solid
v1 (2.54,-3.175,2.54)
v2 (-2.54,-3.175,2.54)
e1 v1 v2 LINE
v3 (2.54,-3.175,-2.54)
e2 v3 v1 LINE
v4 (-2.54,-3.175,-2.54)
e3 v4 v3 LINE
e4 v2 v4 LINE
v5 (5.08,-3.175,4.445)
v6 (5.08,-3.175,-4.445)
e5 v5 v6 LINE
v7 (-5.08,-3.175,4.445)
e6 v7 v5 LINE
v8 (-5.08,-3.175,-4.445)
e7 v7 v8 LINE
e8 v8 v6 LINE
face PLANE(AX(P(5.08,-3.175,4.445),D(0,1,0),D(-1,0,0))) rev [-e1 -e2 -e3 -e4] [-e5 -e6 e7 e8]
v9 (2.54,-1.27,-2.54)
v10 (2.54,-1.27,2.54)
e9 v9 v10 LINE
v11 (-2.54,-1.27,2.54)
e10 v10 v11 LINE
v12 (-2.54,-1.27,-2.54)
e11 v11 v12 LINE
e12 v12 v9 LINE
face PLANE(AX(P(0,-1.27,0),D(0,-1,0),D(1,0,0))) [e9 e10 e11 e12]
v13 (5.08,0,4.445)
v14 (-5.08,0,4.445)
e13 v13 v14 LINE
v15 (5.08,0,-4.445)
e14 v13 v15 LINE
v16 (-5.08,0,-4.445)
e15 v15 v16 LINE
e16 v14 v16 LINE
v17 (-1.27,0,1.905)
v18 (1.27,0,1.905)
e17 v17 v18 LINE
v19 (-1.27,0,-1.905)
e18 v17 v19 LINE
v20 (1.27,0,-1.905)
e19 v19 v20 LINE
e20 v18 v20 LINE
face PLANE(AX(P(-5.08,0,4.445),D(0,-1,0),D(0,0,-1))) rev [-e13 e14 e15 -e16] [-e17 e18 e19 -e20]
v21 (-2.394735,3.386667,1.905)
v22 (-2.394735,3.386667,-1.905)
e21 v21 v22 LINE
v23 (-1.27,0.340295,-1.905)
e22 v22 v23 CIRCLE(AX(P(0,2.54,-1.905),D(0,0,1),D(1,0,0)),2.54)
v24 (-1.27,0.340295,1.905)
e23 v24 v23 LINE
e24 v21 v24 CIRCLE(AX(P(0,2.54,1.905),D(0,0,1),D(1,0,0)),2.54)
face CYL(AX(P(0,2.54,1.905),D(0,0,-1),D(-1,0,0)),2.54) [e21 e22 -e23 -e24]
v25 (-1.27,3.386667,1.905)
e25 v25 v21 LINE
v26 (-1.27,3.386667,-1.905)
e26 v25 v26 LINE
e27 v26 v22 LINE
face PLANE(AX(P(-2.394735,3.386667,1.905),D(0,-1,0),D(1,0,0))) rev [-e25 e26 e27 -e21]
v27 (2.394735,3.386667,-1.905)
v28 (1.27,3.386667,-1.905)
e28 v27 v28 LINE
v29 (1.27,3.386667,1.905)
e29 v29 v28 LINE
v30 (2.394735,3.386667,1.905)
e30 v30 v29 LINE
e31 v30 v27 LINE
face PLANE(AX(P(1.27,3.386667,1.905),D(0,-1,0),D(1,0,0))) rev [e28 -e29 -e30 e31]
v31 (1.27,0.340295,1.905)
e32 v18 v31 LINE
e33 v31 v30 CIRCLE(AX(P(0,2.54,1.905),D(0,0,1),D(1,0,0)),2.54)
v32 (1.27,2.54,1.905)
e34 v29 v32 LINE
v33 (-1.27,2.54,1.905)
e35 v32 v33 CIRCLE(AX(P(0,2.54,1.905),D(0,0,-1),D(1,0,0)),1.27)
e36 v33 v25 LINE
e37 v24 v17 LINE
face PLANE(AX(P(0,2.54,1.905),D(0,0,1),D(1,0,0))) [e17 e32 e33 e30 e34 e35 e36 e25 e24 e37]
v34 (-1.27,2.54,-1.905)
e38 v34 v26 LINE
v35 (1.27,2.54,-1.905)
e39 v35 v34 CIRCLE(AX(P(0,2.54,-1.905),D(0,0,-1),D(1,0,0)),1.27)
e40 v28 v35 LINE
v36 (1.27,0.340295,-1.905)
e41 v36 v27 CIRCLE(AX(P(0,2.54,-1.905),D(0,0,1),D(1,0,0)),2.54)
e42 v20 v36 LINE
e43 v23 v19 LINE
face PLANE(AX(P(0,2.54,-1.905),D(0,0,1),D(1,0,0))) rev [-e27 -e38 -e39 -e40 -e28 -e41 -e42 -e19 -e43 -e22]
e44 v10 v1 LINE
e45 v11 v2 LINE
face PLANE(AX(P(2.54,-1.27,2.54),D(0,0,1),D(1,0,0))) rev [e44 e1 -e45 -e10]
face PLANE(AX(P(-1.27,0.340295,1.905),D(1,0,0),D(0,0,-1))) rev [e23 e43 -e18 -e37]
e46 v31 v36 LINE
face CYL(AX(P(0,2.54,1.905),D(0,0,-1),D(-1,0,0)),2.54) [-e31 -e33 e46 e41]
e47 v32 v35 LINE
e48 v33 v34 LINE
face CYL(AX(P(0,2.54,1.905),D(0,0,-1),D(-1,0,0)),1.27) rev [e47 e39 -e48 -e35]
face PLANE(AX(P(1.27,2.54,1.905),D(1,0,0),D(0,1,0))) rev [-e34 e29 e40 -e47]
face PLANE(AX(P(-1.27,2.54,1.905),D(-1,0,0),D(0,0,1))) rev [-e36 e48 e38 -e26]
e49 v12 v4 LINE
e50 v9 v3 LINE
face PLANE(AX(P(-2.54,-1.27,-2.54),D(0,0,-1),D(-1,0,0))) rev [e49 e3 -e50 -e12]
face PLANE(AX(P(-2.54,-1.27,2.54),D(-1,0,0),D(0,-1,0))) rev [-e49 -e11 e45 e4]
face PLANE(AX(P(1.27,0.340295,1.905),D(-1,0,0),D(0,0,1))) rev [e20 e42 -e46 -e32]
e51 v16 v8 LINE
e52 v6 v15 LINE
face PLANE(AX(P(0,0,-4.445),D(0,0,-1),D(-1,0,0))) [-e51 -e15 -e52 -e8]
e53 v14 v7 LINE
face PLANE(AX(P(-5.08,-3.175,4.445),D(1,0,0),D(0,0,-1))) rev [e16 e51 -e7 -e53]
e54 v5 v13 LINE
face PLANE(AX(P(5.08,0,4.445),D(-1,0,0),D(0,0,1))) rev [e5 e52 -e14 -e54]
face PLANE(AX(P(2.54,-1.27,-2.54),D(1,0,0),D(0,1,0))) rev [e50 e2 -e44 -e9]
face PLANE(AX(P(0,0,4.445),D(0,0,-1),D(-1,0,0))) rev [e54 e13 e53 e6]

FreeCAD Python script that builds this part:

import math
import FreeCAD as App
import Part
import Sketcher
Q = App.Units.Quantity

doc = App.newDocument("Part")
body = doc.addObject("PartDesign::Body", "Body")

# Sketch on XY plane
sketch1 = doc.addObject("Sketcher::SketchObject", "Sketch")
body.addObject(sketch1)
sketch1.AttachmentSupport = (doc.XY_Plane, [""])
sketch1.MapMode = "FlatFace"
sketch1.addGeometry([
    Part.LineSegment(App.Vector(-5.1, 0, 0), App.Vector(-5.1, -3.2, 0)),
    Part.LineSegment(App.Vector(-5.1, -3.2, 0), App.Vector(5.1, -3.2, 0)),
    Part.LineSegment(App.Vector(5.1, -3.2, 0), App.Vector(5.1, 0, 0)),
    Part.LineSegment(App.Vector(5.1, 0, 0), App.Vector(-5.1, 0, 0)),
], False)
sketch1.addConstraint([
    Sketcher.Constraint("Coincident", 0, 2, 1, 1),
    Sketcher.Constraint("Coincident", 1, 2, 2, 1),
    Sketcher.Constraint("Coincident", 2, 2, 3, 1),
    Sketcher.Constraint("Coincident", 3, 2, 0, 1),
    Sketcher.Constraint("Vertical", 0),
    Sketcher.Constraint("Horizontal", 1),
    Sketcher.Constraint("Vertical", 2),
    Sketcher.Constraint("Horizontal", 3),
    Sketcher.Constraint("Symmetric", 2, 2, 3, 2, -1, 1),
    Sketcher.Constraint("DistanceX", 1, 1, 1, 2, Q("0.4 in")),
    Sketcher.Constraint("DistanceY", 0, 2, 0, 1, Q("0.125 in")),
])
pad1 = doc.addObject("PartDesign::Pad", "Pad")
body.addObject(pad1)
pad1.Profile = sketch1
pad1.Length = Q("0.35 in")
pad1.Midplane = True

# Sketch on XY plane
sketch2 = doc.addObject("Sketcher::SketchObject", "Sketch001")
body.addObject(sketch2)
sketch2.AttachmentSupport = (doc.XY_Plane, [""])
sketch2.MapMode = "FlatFace"
sketch2.addGeometry([
    Part.LineSegment(App.Vector(-1.27, 2.54, 0), App.Vector(-1.27, 3.39, 0)),  # 0
    Part.LineSegment(App.Vector(-1.27, 3.39, 0), App.Vector(-2.39, 3.39, 0)),  # 1
    Part.ArcOfCircle(Part.Circle(App.Vector(0, 2.54, 0), App.Vector(0, 0, 1), 2.54), math.radians(161), math.radians(240)),  # 2
    Part.LineSegment(App.Vector(-1.27, 0.34, 0), App.Vector(-1.27, 0, 0)),  # 3
    Part.LineSegment(App.Vector(-1.27, 0, 0), App.Vector(1.27, 0, 0)),  # 4
    Part.LineSegment(App.Vector(1.27, 0, 0), App.Vector(1.27, 0.34, 0)),  # 5
    Part.ArcOfCircle(Part.Circle(App.Vector(0, 2.54, 0), App.Vector(0, 0, 1), 2.54), math.radians(-60), math.radians(19)),  # 6
    Part.LineSegment(App.Vector(2.39, 3.39, 0), App.Vector(1.27, 3.39, 0)),  # 7
    Part.LineSegment(App.Vector(1.27, 3.39, 0), App.Vector(1.27, 2.54, 0)),  # 8
    Part.ArcOfCircle(Part.Circle(App.Vector(0, 2.54, 0), App.Vector(0, 0, 1), 1.27), math.radians(180), math.radians(360)),  # 9
], False)
sketch2.addConstraint([
    Sketcher.Constraint("Coincident", 0, 2, 1, 1),
    Sketcher.Constraint("Coincident", 1, 2, 2, 1),
    Sketcher.Constraint("Coincident", 2, 2, 3, 1),
    Sketcher.Constraint("Coincident", 3, 2, 4, 1),
    Sketcher.Constraint("Coincident", 4, 2, 5, 1),
    Sketcher.Constraint("Coincident", 5, 2, 6, 1),
    Sketcher.Constraint("Coincident", 6, 2, 7, 1),
    Sketcher.Constraint("Coincident", 7, 2, 8, 1),
    Sketcher.Constraint("Tangent", 8, 2, 9, 2),
    Sketcher.Constraint("Tangent", 9, 1, 0, 1),
    Sketcher.Constraint("Vertical", 0),
    Sketcher.Constraint("Horizontal", 1),
    Sketcher.Constraint("Vertical", 3),
    Sketcher.Constraint("Horizontal", 4),
    Sketcher.Constraint("Vertical", 5),
    Sketcher.Constraint("Horizontal", 7),
    Sketcher.Constraint("Vertical", 8),
    Sketcher.Constraint("Coincident", 6, 3, 2, 3),
    Sketcher.Constraint("Coincident", 9, 3, 2, 3),
    Sketcher.Constraint("Equal", 2, 6),
    Sketcher.Constraint("Symmetric", 3, 2, 4, 2, -1, 1),
    Sketcher.Constraint("Symmetric", 1, 2, 6, 2, -2),
    Sketcher.Constraint("Vertical", 0, 2, 2, 2),
    Sketcher.Constraint("Radius", 2, Q("0.1 in")),
    Sketcher.Constraint("Radius", 9, Q("0.05 in")),
    Sketcher.Constraint("DistanceY", -1, 1, 2, 3, Q("0.1 in")),
    Sketcher.Constraint("DistanceX", 1, 2, 1, 1, 1.124735),
])
pad2 = doc.addObject("PartDesign::Pad", "Pad001")
body.addObject(pad2)
pad2.Profile = sketch2
pad2.Length = Q("0.15 in")
pad2.Midplane = True

# Sketch on XZ plane
sketch3 = doc.addObject("Sketcher::SketchObject", "Sketch002")
body.addObject(sketch3)
sketch3.AttachmentSupport = (doc.XZ_Plane, [""])
sketch3.MapMode = "FlatFace"
sketch3.AttachmentOffset = App.Placement(App.Vector(0, 0, 0.125 * 25.4), App.Rotation())
sketch3.addGeometry([
    Part.LineSegment(App.Vector(-8, 7, 0), App.Vector(-8, -7, 0)),  # 0
    Part.LineSegment(App.Vector(-8, -7, 0), App.Vector(8, -7, 0)),  # 1
    Part.LineSegment(App.Vector(8, -7, 0), App.Vector(8, 7, 0)),  # 2
    Part.LineSegment(App.Vector(8, 7, 0), App.Vector(-8, 7, 0)),  # 3
    Part.LineSegment(App.Vector(5, -4, 0), App.Vector(-5, -4, 0)),  # 4
    Part.LineSegment(App.Vector(-5, -4, 0), App.Vector(-5, 4, 0)),  # 5
    Part.LineSegment(App.Vector(-5, 4, 0), App.Vector(5, 4, 0)),  # 6
    Part.LineSegment(App.Vector(5, 4, 0), App.Vector(5, -4, 0)),  # 7
    Part.LineSegment(App.Vector(-3, 3, 0), App.Vector(-3, -3, 0)),  # 8
    Part.LineSegment(App.Vector(-3, -3, 0), App.Vector(3, -3, 0)),  # 9
    Part.LineSegment(App.Vector(3, -3, 0), App.Vector(3, 3, 0)),  # 10
    Part.LineSegment(App.Vector(3, 3, 0), App.Vector(-3, 3, 0)),  # 11
], False)
sketch3.addConstraint([
    Sketcher.Constraint("Coincident", 0, 2, 1, 1),
    Sketcher.Constraint("Coincident", 1, 2, 2, 1),
    Sketcher.Constraint("Coincident", 2, 2, 3, 1),
    Sketcher.Constraint("Coincident", 3, 2, 0, 1),
    Sketcher.Constraint("Coincident", 4, 2, 5, 1),
    Sketcher.Constraint("Coincident", 5, 2, 6, 1),
    Sketcher.Constraint("Coincident", 6, 2, 7, 1),
    Sketcher.Constraint("Coincident", 7, 2, 4, 1),
    Sketcher.Constraint("Coincident", 8, 2, 9, 1),
    Sketcher.Constraint("Coincident", 9, 2, 10, 1),
    Sketcher.Constraint("Coincident", 10, 2, 11, 1),
    Sketcher.Constraint("Coincident", 11, 2, 8, 1),
    Sketcher.Constraint("Vertical", 0),
    Sketcher.Constraint("Horizontal", 1),
    Sketcher.Constraint("Vertical", 2),
    Sketcher.Constraint("Horizontal", 3),
    Sketcher.Constraint("Horizontal", 4),
    Sketcher.Constraint("Vertical", 5),
    Sketcher.Constraint("Horizontal", 6),
    Sketcher.Constraint("Vertical", 7),
    Sketcher.Constraint("Vertical", 8),
    Sketcher.Constraint("Horizontal", 9),
    Sketcher.Constraint("Vertical", 10),
    Sketcher.Constraint("Horizontal", 11),
    Sketcher.Constraint("Symmetric", 0, 2, 2, 2, -1, 1),
    Sketcher.Constraint("Symmetric", 4, 2, 6, 2, -1, 1),
    Sketcher.Constraint("Symmetric", 8, 2, 10, 2, -1, 1),
    Sketcher.Constraint("Equal", 11, 8),
    Sketcher.Constraint("DistanceX", 4, 2, 4, 1, Q("0.4 in")),
    Sketcher.Constraint("DistanceX", 9, 1, 9, 2, Q("0.2 in")),
    Sketcher.Constraint("DistanceY", 5, 1, 5, 2, Q("0.35 in")),
    Sketcher.Constraint("DistanceX", 1, 1, 1, 2, 15.162),
    Sketcher.Constraint("DistanceY", 0, 2, 0, 1, 13.892),
])
pocket1 = doc.addObject("PartDesign::Pocket", "Pocket")
body.addObject(pocket1)
pocket1.Profile = sketch3
pocket1.Length = Q("0.075 in")

doc.recompute()
